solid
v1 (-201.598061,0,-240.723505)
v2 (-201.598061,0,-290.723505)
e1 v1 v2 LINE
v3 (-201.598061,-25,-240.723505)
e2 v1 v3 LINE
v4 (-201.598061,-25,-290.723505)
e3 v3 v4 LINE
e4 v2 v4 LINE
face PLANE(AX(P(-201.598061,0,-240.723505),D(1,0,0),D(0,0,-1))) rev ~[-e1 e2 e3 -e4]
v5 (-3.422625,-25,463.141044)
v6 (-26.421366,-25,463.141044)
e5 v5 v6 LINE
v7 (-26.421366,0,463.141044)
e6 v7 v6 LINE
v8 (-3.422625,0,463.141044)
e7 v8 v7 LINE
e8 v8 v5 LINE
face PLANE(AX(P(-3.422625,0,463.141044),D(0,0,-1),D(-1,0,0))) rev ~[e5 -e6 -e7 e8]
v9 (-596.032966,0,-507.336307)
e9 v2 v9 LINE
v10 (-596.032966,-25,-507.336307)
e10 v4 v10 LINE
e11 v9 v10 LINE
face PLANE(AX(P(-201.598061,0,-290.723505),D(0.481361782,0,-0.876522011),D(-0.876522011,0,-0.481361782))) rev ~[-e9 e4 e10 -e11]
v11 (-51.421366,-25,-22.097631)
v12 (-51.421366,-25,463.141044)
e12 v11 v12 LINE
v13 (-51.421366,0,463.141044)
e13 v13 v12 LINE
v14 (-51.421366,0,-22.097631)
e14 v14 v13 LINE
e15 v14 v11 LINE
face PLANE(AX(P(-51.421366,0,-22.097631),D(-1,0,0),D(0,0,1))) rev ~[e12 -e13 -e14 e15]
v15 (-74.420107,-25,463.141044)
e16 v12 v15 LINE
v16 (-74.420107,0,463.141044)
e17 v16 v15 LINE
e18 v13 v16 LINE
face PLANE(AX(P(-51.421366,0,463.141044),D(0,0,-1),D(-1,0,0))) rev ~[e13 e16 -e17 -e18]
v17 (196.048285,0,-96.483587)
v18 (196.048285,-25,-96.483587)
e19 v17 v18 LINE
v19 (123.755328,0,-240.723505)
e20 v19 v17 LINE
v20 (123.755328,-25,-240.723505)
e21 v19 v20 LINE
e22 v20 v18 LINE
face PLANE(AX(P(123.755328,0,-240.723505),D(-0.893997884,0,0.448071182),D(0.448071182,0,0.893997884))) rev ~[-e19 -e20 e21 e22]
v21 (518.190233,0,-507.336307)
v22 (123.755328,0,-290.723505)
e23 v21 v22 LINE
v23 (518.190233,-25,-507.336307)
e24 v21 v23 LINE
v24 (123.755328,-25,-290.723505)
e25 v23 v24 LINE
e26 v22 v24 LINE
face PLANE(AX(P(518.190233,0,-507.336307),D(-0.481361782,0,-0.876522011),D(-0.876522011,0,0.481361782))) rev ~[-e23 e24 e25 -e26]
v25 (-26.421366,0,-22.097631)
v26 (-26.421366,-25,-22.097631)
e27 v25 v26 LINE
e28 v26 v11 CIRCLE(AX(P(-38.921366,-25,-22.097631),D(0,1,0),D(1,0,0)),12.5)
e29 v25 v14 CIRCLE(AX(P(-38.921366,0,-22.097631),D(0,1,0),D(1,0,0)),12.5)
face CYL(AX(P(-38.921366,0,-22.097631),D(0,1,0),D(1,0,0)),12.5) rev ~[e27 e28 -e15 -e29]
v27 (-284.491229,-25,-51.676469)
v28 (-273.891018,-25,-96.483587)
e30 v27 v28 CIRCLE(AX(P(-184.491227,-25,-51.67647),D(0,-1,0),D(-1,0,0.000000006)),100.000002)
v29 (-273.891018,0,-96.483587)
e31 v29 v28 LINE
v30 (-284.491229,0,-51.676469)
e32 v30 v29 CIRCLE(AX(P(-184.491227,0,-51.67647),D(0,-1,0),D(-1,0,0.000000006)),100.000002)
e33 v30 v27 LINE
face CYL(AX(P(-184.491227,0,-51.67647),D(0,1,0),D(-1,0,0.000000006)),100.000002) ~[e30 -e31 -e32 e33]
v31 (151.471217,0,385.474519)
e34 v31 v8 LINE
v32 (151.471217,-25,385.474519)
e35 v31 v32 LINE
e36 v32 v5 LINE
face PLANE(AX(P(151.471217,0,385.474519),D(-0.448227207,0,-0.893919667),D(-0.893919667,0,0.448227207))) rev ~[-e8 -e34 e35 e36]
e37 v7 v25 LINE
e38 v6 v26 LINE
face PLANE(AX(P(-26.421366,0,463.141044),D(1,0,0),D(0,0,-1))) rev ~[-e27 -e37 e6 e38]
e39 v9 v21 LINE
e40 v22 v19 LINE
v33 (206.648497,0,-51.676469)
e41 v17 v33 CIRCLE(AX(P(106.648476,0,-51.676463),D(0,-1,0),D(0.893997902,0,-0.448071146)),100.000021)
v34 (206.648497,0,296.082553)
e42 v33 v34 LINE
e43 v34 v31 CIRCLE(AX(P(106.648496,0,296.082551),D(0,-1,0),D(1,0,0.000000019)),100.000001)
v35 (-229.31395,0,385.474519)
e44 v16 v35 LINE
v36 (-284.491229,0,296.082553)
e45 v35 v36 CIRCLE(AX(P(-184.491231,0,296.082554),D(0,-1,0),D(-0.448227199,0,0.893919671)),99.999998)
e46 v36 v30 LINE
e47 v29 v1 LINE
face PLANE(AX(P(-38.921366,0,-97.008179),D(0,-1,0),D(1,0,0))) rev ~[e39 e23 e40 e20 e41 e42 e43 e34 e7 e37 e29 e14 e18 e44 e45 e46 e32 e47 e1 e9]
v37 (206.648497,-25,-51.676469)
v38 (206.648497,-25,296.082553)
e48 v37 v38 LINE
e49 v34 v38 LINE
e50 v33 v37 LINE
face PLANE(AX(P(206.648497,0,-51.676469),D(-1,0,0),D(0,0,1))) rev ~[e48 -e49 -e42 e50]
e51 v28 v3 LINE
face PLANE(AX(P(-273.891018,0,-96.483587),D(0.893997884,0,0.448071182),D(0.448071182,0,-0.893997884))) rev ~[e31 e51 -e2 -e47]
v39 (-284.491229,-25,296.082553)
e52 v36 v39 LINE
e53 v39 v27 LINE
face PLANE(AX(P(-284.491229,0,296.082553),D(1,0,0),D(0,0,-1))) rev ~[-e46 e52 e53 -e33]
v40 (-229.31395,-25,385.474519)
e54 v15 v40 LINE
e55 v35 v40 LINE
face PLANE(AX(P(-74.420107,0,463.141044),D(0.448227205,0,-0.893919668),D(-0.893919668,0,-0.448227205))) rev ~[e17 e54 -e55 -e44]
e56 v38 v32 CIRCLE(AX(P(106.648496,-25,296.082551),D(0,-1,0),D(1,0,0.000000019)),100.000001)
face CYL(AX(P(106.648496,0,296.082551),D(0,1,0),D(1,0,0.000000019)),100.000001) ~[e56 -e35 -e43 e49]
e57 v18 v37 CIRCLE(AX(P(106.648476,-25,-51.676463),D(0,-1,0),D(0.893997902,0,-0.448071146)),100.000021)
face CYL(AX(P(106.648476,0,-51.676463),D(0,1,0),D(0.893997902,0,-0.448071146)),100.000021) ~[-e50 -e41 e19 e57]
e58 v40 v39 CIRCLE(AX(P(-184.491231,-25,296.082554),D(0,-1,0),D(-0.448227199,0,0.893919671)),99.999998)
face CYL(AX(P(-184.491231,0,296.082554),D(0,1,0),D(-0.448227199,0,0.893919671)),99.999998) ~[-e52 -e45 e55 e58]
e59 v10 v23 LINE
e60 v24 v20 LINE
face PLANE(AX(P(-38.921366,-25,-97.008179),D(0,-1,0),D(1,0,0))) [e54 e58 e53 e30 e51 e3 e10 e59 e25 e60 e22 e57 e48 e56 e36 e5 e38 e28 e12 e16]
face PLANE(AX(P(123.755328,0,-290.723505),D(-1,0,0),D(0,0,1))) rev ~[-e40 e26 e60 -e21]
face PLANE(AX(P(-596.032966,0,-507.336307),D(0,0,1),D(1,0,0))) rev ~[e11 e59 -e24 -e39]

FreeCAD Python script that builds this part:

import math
import FreeCAD as App
import Part
import Sketcher

V = App.Vector
Q = App.Units.Quantity

doc = App.newDocument("Part")
body = doc.addObject("PartDesign::Body", "Body")

# Sketch on XZ plane
sketch1 = body.newObject("Sketcher::SketchObject", "Sketch")
sketch1.AttachmentSupport = (doc.getObject("XZ_Plane"), [""])
sketch1.MapMode = "FlatFace"
sketch1.addGeometry(Part.LineSegment(V(-596.032966, -507.336307, 0), V(518.190233, -507.336307, 0)), False)
sketch1.addGeometry(Part.LineSegment(V(518.190233, -507.336307, 0), V(123.755328, -290.723505, 0)), False)
sketch1.addGeometry(Part.LineSegment(V(123.755328, -290.723505, 0), V(123.755328, -240.723505, 0)), False)
sketch1.addGeometry(Part.LineSegment(V(123.755328, -240.723505, 0), V(196.048285, -96.483587, 0)), False)
sketch1.addGeometry(Part.ArcOfCircle(Part.Circle(V(106.648476, -51.676463, 0), V(0, 0, 1), 100.000021), math.radians(-26.619998), math.radians(-0.000003)), False)
sketch1.addGeometry(Part.LineSegment(V(206.648497, -51.676469, 0), V(206.648497, 296.082553, 0)), False)
sketch1.addGeometry(Part.ArcOfCircle(Part.Circle(V(106.648496, 296.082551, 0), V(0, 0, 1), 100.000001), math.radians(0.000001), math.radians(63.37)), False)
sketch1.addGeometry(Part.LineSegment(V(151.471217, 385.474519, 0), V(-3.422625, 463.141044, 0)), False)
sketch1.addGeometry(Part.LineSegment(V(-3.422625, 463.141044, 0), V(-26.421366, 463.141044, 0)), False)
sketch1.addGeometry(Part.LineSegment(V(-26.421366, 463.141044, 0), V(-26.421366, -22.097631, 0)), False)
sketch1.addGeometry(Part.ArcOfCircle(Part.Circle(V(-38.921366, -22.097631, 0), V(0, 0, 1), 12.5), math.radians(180), math.radians(360)), False)
sketch1.addGeometry(Part.LineSegment(V(-51.421366, -22.097631, 0), V(-51.421366, 463.141044, 0)), False)
sketch1.addGeometry(Part.LineSegment(V(-51.421366, 463.141044, 0), V(-74.420107, 463.141044, 0)), False)
sketch1.addGeometry(Part.LineSegment(V(-74.420107, 463.141044, 0), V(-229.31395, 385.474519, 0)), False)
sketch1.addGeometry(Part.ArcOfCircle(Part.Circle(V(-184.491231, 296.082554, 0), V(0, 0, 1), 99.999998), math.radians(116.63), math.radians(180)), False)
sketch1.addGeometry(Part.LineSegment(V(-284.491229, 296.082553, 0), V(-284.491229, -51.676469, 0)), False)
sketch1.addGeometry(Part.ArcOfCircle(Part.Circle(V(-184.491227, -51.67647, 0), V(0, 0, 1), 100.000002), math.radians(180), math.radians(206.619999)), False)
sketch1.addGeometry(Part.LineSegment(V(-273.891018, -96.483587, 0), V(-201.598061, -240.723505, 0)), False)
sketch1.addGeometry(Part.LineSegment(V(-201.598061, -240.723505, 0), V(-201.598061, -290.723505, 0)), False)
sketch1.addGeometry(Part.LineSegment(V(-201.598061, -290.723505, 0), V(-596.032966, -507.336307, 0)), False)
sketch1.addConstraint(Sketcher.Constraint("Coincident", 0, 2, 1, 1))
sketch1.addConstraint(Sketcher.Constraint("Coincident", 1, 2, 2, 1))
sketch1.addConstraint(Sketcher.Constraint("Coincident", 2, 2, 3, 1))
sketch1.addConstraint(Sketcher.Constraint("Tangent", 3, 2, 4, 1))
sketch1.addConstraint(Sketcher.Constraint("Tangent", 4, 2, 5, 1))
sketch1.addConstraint(Sketcher.Constraint("Tangent", 5, 2, 6, 1))
sketch1.addConstraint(Sketcher.Constraint("Tangent", 6, 2, 7, 1))
sketch1.addConstraint(Sketcher.Constraint("Coincident", 7, 2, 8, 1))
sketch1.addConstraint(Sketcher.Constraint("Coincident", 8, 2, 9, 1))
sketch1.addConstraint(Sketcher.Constraint("Tangent", 9, 2, 10, 2))
sketch1.addConstraint(Sketcher.Constraint("Tangent", 10, 1, 11, 1))
sketch1.addConstraint(Sketcher.Constraint("Coincident", 11, 2, 12, 1))
sketch1.addConstraint(Sketcher.Constraint("Coincident", 12, 2, 13, 1))
sketch1.addConstraint(Sketcher.Constraint("Tangent", 13, 2, 14, 1))
sketch1.addConstraint(Sketcher.Constraint("Tangent", 14, 2, 15, 1))
sketch1.addConstraint(Sketcher.Constraint("Tangent", 15, 2, 16, 1))
sketch1.addConstraint(Sketcher.Constraint("Tangent", 16, 2, 17, 1))
sketch1.addConstraint(Sketcher.Constraint("Coincident", 17, 2, 18, 1))
sketch1.addConstraint(Sketcher.Constraint("Coincident", 18, 2, 19, 1))
sketch1.addConstraint(Sketcher.Constraint("Coincident", 19, 2, 0, 1))
sketch1.addConstraint(Sketcher.Constraint("Horizontal", 0))
sketch1.addConstraint(Sketcher.Constraint("Vertical", 2))
sketch1.addConstraint(Sketcher.Constraint("Vertical", 5))
sketch1.addConstraint(Sketcher.Constraint("Horizontal", 8))
sketch1.addConstraint(Sketcher.Constraint("Vertical", 9))
sketch1.addConstraint(Sketcher.Constraint("Vertical", 11))
sketch1.addConstraint(Sketcher.Constraint("Horizontal", 12))
sketch1.addConstraint(Sketcher.Constraint("Vertical", 15))
sketch1.addConstraint(Sketcher.Constraint("Vertical", 18))
sketch1.addConstraint(Sketcher.Constraint("Equal", 6, 16))
sketch1.addConstraint(Sketcher.Constraint("Horizontal", 16, 3, 4, 2))
sketch1.addConstraint(Sketcher.Constraint("Horizontal", 14, 3, 5, 2))
sketch1.addConstraint(Sketcher.Constraint("Horizontal", 8, 2, 11, 2))
sketch1.addConstraint(Sketcher.Constraint("Horizontal", 6, 2, 13, 2))
sketch1.addConstraint(Sketcher.Constraint("Horizontal", 3, 2, 16, 2))
sketch1.addConstraint(Sketcher.Constraint("Horizontal", 2, 2, 17, 2))
sketch1.addConstraint(Sketcher.Constraint("Horizontal", 1, 2, 18, 2))
sketch1.addConstraint(Sketcher.Constraint("Equal", 8, 12))
sketch1.addConstraint(Sketcher.Constraint("Equal", 7, 13))
sketch1.addConstraint(Sketcher.Constraint("Equal", 3, 17))
sketch1.addConstraint(Sketcher.Constraint("Equal", 1, 19))
sketch1.addConstraint(Sketcher.Constraint("Radius", 6, 100.000001))
sketch1.addConstraint(Sketcher.Constraint("Radius", 10, 12.5))
sketch1.addConstraint(Sketcher.Constraint("DistanceY", 2, 1, 2, 2, 50.0))
sketch1.addConstraint(Sketcher.Constraint("Distance", 1, 450.0))
sketch1.addConstraint(Sketcher.Constraint("Angle", 3, Q("63.38 deg")))
sketch1.addConstraint(Sketcher.Constraint("Angle", 7, Q("153.37 deg")))
sketch1.addConstraint(Sketcher.Constraint("DistanceX", 0, 1, 0, 2, 1114.223199))
sketch1.addConstraint(Sketcher.Constraint("Distance", 7, 173.274901))
sketch1.addConstraint(Sketcher.Constraint("DistanceX", 8, 2, 8, 1, 22.998741))
sketch1.addConstraint(Sketcher.Constraint("DistanceY", 5, 1, 5, 2, 347.759022))
sketch1.addConstraint(Sketcher.Constraint("DistanceY", 0, 2, 1, 2, 216.612802))
sketch1.addConstraint(Sketcher.Constraint("DistanceY", 9, 2, 9, 1, 485.238675))
sketch1.addConstraint(Sketcher.Constraint("DistanceY", -1, 1, 6, 3, 296.082551))
sketch1.addConstraint(Sketcher.Constraint("DistanceX", 14, 3, -1, 1, 184.491231))
pad1 = body.newObject("PartDesign::Pad", "Pad")
pad1.Profile = sketch1
pad1.Length = 25

doc.recompute()
